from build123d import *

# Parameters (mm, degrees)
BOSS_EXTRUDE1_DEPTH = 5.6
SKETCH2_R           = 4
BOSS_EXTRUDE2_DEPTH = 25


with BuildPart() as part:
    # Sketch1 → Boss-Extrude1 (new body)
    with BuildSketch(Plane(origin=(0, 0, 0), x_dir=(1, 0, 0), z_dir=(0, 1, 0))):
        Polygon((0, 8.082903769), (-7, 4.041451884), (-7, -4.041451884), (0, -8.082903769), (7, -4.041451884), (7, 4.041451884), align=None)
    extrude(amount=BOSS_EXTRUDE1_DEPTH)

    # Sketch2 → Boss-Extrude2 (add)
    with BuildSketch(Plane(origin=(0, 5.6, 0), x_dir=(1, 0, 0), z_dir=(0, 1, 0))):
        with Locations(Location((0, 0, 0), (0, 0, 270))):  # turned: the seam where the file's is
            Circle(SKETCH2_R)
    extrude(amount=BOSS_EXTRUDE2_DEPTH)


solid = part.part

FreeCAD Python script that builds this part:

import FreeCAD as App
import Part
import Sketcher

V = App.Vector
Q = App.Units.Quantity


def add_polygon(sketch, points):
    """Adds a closed chain of lines whose ends are joined by coincident constraints."""
    first, n = sketch.GeometryCount, len(points)
    for a, b in zip(points, points[1:] + points[:1]):
        sketch.addGeometry(Part.LineSegment(App.Vector(*a, 0), App.Vector(*b, 0)), False)
    for i in range(n):
        sketch.addConstraint(Sketcher.Constraint("Coincident", first + i, 2, first + (i + 1) % n, 1))

doc = App.newDocument("Part")
body = doc.addObject("PartDesign::Body", "Body")

# Sketch on XZ plane
sketch1 = doc.addObject("Sketcher::SketchObject", "Sketch")
body.addObject(sketch1)
sketch1.AttachmentSupport = (doc.XZ_Plane, [""])
sketch1.MapMode = "FlatFace"
add_polygon(sketch1, [(0, -8), (-7, -4), (-7, 4), (0, 8), (7, 4), (7, -4)])  # lines 0-5
sketch1.addConstraint(Sketcher.Constraint("Vertical", 1))
sketch1.addConstraint(Sketcher.Constraint("Vertical", 4))
sketch1.addConstraint(Sketcher.Constraint("Symmetric", 0, 2, 3, 2, -1, 1))
sketch1.addConstraint(Sketcher.Constraint("Symmetric", 2, 2, 5, 2, -1, 1))
sketch1.addConstraint(Sketcher.Constraint("PointOnObject", 2, 2, -2))
sketch1.addConstraint(Sketcher.Constraint("Parallel", 2, 5))
sketch1.addConstraint(Sketcher.Constraint("Horizontal", 1, 2, 3, 2))
sketch1.addConstraint(Sketcher.Constraint("Angle", 0, Q("150 deg")))
sketch1.addConstraint(Sketcher.Constraint("DistanceX", 0, 2, -1, 1, 7.0))
sketch1.addConstraint(Sketcher.Constraint("DistanceY", 1, 1, 1, 2, 8.082904))
pad1 = doc.addObject("PartDesign::Pad", "Pad")
body.addObject(pad1)
pad1.Profile = sketch1
pad1.Length = 5.6
pad1.Reversed = True

# Sketch on XZ plane
sketch2 = doc.addObject("Sketcher::SketchObject", "Sketch001")
body.addObject(sketch2)
sketch2.AttachmentSupport = (doc.XZ_Plane, [""])
sketch2.MapMode = "FlatFace"
sketch2.AttachmentOffset = App.Placement(V(0, 0, -5.6), App.Rotation())
sketch2.addGeometry(Part.Circle(V(0, 0, 0), V(0, 0, 1), 4), False)
sketch2.addConstraint(Sketcher.Constraint("Coincident", 0, 3, -1, 1))
sketch2.addConstraint(Sketcher.Constraint("Diameter", 0, 8.0))
pad2 = doc.addObject("PartDesign::Pad", "Pad001")
body.addObject(pad2)
pad2.Profile = sketch2
pad2.Length = 25
pad2.Reversed = True

doc.recompute()
